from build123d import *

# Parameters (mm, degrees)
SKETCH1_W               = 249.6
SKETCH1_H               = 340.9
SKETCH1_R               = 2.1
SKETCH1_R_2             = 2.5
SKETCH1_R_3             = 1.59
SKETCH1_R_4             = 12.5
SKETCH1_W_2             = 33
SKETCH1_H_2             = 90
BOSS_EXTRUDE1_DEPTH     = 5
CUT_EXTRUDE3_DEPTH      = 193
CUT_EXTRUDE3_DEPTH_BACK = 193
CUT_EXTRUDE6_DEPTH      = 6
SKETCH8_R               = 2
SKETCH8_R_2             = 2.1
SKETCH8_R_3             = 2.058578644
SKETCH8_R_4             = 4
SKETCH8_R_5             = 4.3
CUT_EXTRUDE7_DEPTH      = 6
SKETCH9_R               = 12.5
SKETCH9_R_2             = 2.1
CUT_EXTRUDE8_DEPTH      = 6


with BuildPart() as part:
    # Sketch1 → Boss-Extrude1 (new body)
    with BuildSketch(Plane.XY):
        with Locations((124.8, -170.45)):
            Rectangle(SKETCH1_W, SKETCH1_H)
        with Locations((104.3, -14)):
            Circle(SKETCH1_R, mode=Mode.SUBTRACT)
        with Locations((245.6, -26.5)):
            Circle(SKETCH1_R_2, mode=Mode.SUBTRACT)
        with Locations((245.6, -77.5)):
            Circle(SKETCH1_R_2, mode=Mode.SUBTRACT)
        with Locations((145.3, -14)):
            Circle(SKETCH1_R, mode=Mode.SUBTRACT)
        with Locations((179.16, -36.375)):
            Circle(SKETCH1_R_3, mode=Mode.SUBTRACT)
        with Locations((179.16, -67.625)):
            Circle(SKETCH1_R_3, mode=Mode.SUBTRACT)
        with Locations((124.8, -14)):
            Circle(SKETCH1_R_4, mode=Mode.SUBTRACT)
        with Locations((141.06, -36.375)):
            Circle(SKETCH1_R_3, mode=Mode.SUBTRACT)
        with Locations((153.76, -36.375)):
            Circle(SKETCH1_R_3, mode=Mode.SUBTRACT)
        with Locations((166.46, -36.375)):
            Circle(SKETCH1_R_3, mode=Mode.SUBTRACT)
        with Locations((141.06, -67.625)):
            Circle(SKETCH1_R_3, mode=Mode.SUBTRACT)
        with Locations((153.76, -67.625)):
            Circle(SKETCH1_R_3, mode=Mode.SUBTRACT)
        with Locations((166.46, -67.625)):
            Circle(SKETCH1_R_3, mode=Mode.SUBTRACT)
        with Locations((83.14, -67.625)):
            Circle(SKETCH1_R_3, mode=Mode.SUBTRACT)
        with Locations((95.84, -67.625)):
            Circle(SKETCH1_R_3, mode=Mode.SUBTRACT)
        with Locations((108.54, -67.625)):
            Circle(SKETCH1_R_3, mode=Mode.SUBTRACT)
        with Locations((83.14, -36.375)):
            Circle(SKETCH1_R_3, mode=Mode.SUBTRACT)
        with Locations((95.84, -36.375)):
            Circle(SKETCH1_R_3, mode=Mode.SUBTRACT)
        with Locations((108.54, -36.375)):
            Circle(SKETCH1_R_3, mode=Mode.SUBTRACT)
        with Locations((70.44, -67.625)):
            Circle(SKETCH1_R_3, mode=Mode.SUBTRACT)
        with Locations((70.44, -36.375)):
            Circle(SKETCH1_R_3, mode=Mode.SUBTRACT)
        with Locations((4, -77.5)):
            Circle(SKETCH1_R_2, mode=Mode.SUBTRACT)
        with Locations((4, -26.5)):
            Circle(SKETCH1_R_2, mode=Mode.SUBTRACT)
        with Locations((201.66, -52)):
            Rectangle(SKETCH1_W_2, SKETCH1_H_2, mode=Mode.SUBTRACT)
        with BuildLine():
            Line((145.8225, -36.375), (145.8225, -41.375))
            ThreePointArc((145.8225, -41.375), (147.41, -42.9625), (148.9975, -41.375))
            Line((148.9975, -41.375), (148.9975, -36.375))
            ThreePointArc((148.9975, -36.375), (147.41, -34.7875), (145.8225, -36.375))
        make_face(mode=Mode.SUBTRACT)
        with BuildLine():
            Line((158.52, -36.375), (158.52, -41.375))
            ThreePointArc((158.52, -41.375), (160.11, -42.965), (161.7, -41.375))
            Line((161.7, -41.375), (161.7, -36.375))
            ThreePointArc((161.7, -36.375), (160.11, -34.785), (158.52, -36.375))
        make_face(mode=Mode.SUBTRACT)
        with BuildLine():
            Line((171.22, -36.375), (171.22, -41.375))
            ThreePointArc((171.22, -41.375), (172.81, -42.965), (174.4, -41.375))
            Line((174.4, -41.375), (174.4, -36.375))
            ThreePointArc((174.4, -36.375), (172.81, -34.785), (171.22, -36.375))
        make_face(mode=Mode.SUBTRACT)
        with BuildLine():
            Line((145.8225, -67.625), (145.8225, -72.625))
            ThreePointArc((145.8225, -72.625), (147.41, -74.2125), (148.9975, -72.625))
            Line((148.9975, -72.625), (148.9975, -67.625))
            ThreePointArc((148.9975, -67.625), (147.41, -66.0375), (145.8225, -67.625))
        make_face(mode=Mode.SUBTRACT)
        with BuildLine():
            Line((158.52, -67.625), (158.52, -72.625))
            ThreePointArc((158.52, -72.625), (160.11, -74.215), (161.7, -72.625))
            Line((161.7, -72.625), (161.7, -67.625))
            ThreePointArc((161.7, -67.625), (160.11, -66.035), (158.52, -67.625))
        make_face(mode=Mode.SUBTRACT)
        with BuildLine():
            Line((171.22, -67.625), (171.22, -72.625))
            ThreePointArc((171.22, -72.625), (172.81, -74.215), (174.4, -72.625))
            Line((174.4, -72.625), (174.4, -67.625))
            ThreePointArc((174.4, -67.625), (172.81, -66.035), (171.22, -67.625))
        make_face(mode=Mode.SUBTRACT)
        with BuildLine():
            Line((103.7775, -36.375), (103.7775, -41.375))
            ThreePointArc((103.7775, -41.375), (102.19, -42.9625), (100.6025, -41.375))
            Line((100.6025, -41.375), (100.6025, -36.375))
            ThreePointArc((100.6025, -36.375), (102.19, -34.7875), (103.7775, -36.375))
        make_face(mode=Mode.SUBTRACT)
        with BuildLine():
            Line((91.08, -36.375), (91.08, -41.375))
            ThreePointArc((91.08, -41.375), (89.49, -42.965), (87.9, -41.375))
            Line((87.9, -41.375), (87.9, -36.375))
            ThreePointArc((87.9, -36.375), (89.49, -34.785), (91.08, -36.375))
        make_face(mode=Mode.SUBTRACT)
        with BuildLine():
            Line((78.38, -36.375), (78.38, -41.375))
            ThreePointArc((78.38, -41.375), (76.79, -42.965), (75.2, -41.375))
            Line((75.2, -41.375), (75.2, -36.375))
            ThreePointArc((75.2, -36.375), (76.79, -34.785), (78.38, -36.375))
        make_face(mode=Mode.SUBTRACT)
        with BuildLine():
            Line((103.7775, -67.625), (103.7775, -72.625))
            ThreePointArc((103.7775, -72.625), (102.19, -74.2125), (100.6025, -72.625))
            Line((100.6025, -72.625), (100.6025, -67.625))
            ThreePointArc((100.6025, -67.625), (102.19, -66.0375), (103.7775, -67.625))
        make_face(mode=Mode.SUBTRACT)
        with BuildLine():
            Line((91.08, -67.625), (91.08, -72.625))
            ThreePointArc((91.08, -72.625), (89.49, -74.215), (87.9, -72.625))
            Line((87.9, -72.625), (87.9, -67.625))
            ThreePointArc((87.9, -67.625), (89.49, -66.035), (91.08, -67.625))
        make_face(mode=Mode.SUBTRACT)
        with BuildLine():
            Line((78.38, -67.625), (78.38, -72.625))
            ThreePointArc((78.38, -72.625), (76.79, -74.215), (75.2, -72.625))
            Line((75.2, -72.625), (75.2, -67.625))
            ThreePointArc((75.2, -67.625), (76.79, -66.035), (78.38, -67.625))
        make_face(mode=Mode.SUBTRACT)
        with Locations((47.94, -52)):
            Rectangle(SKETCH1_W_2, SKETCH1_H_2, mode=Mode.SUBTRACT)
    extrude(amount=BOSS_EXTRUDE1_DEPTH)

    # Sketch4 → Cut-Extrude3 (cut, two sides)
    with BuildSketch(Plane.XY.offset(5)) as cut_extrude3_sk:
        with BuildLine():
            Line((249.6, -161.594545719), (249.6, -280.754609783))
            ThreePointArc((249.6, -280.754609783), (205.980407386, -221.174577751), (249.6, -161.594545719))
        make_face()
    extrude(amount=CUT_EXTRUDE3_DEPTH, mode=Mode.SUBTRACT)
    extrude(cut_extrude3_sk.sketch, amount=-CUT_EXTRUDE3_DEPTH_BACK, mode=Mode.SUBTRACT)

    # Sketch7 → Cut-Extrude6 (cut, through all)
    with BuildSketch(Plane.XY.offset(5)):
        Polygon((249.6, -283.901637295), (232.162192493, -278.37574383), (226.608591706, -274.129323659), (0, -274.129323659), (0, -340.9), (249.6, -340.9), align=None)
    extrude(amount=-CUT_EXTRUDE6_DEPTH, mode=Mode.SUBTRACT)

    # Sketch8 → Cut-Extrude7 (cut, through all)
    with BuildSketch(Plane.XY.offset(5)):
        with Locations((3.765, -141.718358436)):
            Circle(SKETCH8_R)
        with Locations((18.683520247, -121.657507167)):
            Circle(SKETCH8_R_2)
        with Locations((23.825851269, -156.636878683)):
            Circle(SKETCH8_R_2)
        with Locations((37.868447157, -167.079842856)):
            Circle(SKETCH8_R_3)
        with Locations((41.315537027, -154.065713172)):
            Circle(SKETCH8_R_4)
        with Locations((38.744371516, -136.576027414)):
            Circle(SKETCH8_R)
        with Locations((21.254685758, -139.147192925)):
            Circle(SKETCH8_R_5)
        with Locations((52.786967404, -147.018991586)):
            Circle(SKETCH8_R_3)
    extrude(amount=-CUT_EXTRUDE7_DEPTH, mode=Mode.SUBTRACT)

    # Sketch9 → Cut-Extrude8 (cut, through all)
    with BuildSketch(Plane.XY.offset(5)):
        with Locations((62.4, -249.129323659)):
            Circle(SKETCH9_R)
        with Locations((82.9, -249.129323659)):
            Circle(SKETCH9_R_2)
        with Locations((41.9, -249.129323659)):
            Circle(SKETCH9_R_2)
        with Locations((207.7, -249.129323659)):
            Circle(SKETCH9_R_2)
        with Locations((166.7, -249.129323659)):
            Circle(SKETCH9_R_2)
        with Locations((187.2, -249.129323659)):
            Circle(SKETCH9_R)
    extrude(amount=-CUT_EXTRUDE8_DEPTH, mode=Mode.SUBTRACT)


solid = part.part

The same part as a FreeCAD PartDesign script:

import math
import FreeCAD as App
import Part
import Sketcher

V = App.Vector


def add_polygon(sketch, points):
    """Adds a closed chain of lines whose ends are joined by coincident constraints."""
    first, n = sketch.GeometryCount, len(points)
    for a, b in zip(points, points[1:] + points[:1]):
        sketch.addGeometry(Part.LineSegment(App.Vector(*a, 0), App.Vector(*b, 0)), False)
    for i in range(n):
        sketch.addConstraint(Sketcher.Constraint("Coincident", first + i, 2, first + (i + 1) % n, 1))

doc = App.newDocument("Part")
body = doc.addObject("PartDesign::Body", "Body")

# Sketch on XY plane
sketch1 = doc.addObject("Sketcher::SketchObject", "Sketch")
body.addObject(sketch1)
sketch1.AttachmentSupport = (doc.XY_Plane, [""])
sketch1.MapMode = "FlatFace"
add_polygon(sketch1, [(0, 0), (0, -340.9), (249.6, -340.9), (249.6, 0)])  # lines 0-3
sketch1.addGeometry(Part.Circle(V(4, -77.5, 0), V(0, 0, 1), 2.5), False)  # 4
add_polygon(sketch1, [(64.4, -97), (31.4, -97), (31.4, -7), (64.4, -7)])  # lines 5-8
sketch1.addGeometry(Part.Circle(V(70.4, -67.6, 0), V(0, 0, 1), 1.6), False)  # 9
sketch1.addGeometry(Part.ArcOfCircle(Part.Circle(V(76.8, -67.6, 0), V(0, 0, 1), 1.6), math.radians(0), math.radians(180)), False)  # 10
sketch1.addGeometry(Part.LineSegment(V(78.4, -67.6, 0), V(78.4, -72.6, 0)), False)  # 11
sketch1.addGeometry(Part.ArcOfCircle(Part.Circle(V(76.8, -72.6, 0), V(0, 0, 1), 1.6), math.radians(180), math.radians(360)), False)  # 12
sketch1.addGeometry(Part.LineSegment(V(75.2, -72.6, 0), V(75.2, -67.6, 0)), False)  # 13
sketch1.addGeometry(Part.Circle(V(83.1, -67.6, 0), V(0, 0, 1), 1.6), False)  # 14
sketch1.addGeometry(Part.ArcOfCircle(Part.Circle(V(89.5, -67.6, 0), V(0, 0, 1), 1.6), math.radians(0), math.radians(180)), False)  # 15
sketch1.addGeometry(Part.LineSegment(V(91.1, -67.6, 0), V(91.1, -72.6, 0)), False)  # 16
sketch1.addGeometry(Part.ArcOfCircle(Part.Circle(V(89.5, -72.6, 0), V(0, 0, 1), 1.6), math.radians(180), math.radians(360)), False)  # 17
sketch1.addGeometry(Part.LineSegment(V(87.9, -72.6, 0), V(87.9, -67.6, 0)), False)  # 18
sketch1.addGeometry(Part.Circle(V(95.8, -67.6, 0), V(0, 0, 1), 1.6), False)  # 19
sketch1.addGeometry(Part.ArcOfCircle(Part.Circle(V(102.2, -67.6, 0), V(0, 0, 1), 1.6), math.radians(0), math.radians(180)), False)  # 20
sketch1.addGeometry(Part.LineSegment(V(103.8, -67.6, 0), V(103.8, -72.6, 0)), False)  # 21
sketch1.addGeometry(Part.ArcOfCircle(Part.Circle(V(102.2, -72.6, 0), V(0, 0, 1), 1.6), math.radians(180), math.radians(360)), False)  # 22
sketch1.addGeometry(Part.LineSegment(V(100.6, -72.6, 0), V(100.6, -67.6, 0)), False)  # 23
sketch1.addGeometry(Part.Circle(V(108.5, -67.6, 0), V(0, 0, 1), 1.6), False)  # 24
sketch1.addGeometry(Part.Circle(V(245.6, -77.5, 0), V(0, 0, 1), 2.5), False)  # 25
sketch1.addGeometry(Part.LineSegment(V(145.8, -72.6, 0), V(145.8, -67.6, 0)), False)  # 26
sketch1.addGeometry(Part.ArcOfCircle(Part.Circle(V(147.4, -67.6, 0), V(0, 0, 1), 1.6), math.radians(0), math.radians(180)), False)  # 27
sketch1.addGeometry(Part.LineSegment(V(149, -67.6, 0), V(149, -72.6, 0)), False)  # 28
sketch1.addGeometry(Part.ArcOfCircle(Part.Circle(V(147.4, -72.6, 0), V(0, 0, 1), 1.6), math.radians(180), math.radians(360)), False)  # 29
sketch1.addGeometry(Part.Circle(V(141.1, -67.6, 0), V(0, 0, 1), 1.6), False)  # 30
sketch1.addGeometry(Part.Circle(V(153.8, -67.6, 0), V(0, 0, 1), 1.6), False)  # 31
sketch1.addGeometry(Part.LineSegment(V(158.5, -72.6, 0), V(158.5, -67.6, 0)), False)  # 32
sketch1.addGeometry(Part.ArcOfCircle(Part.Circle(V(160.1, -67.6, 0), V(0, 0, 1), 1.6), math.radians(0), math.radians(180)), False)  # 33
sketch1.addGeometry(Part.LineSegment(V(161.7, -67.6, 0), V(161.7, -72.6, 0)), False)  # 34
sketch1.addGeometry(Part.ArcOfCircle(Part.Circle(V(160.1, -72.6, 0), V(0, 0, 1), 1.6), math.radians(180), math.radians(360)), False)  # 35
sketch1.addGeometry(Part.Circle(V(166.5, -67.6, 0), V(0, 0, 1), 1.6), False)  # 36
sketch1.addGeometry(Part.LineSegment(V(171.2, -72.6, 0), V(171.2, -67.6, 0)), False)  # 37
sketch1.addGeometry(Part.ArcOfCircle(Part.Circle(V(172.8, -67.6, 0), V(0, 0, 1), 1.6), math.radians(0), math.radians(180)), False)  # 38
sketch1.addGeometry(Part.LineSegment(V(174.4, -67.6, 0), V(174.4, -72.6, 0)), False)  # 39
sketch1.addGeometry(Part.ArcOfCircle(Part.Circle(V(172.8, -72.6, 0), V(0, 0, 1), 1.6), math.radians(180), math.radians(360)), False)  # 40
sketch1.addGeometry(Part.Circle(V(179.2, -67.6, 0), V(0, 0, 1), 1.6), False)  # 41
add_polygon(sketch1, [(218.2, -97), (185.2, -97), (185.2, -7), (218.2, -7)])  # lines 42-45
sketch1.addGeometry(Part.Circle(V(4, -26.5, 0), V(0, 0, 1), 2.5), False)  # 46
sketch1.addGeometry(Part.ArcOfCircle(Part.Circle(V(76.8, -36.4, 0), V(0, 0, 1), 1.6), math.radians(0), math.radians(180)), False)  # 47
sketch1.addGeometry(Part.LineSegment(V(78.4, -36.4, 0), V(78.4, -41.4, 0)), False)  # 48
sketch1.addGeometry(Part.ArcOfCircle(Part.Circle(V(76.8, -41.4, 0), V(0, 0, 1), 1.6), math.radians(180), math.radians(360)), False)  # 49
sketch1.addGeometry(Part.LineSegment(V(75.2, -41.4, 0), V(75.2, -36.4, 0)), False)  # 50
sketch1.addGeometry(Part.ArcOfCircle(Part.Circle(V(89.5, -36.4, 0), V(0, 0, 1), 1.6), math.radians(0), math.radians(180)), False)  # 51
sketch1.addGeometry(Part.LineSegment(V(91.1, -36.4, 0), V(91.1, -41.4, 0)), False)  # 52
sketch1.addGeometry(Part.ArcOfCircle(Part.Circle(V(89.5, -41.4, 0), V(0, 0, 1), 1.6), math.radians(180), math.radians(360)), False)  # 53
sketch1.addGeometry(Part.LineSegment(V(87.9, -41.4, 0), V(87.9, -36.4, 0)), False)  # 54
sketch1.addGeometry(Part.ArcOfCircle(Part.Circle(V(102.2, -36.4, 0), V(0, 0, 1), 1.6), math.radians(0), math.radians(180)), False)  # 55
sketch1.addGeometry(Part.LineSegment(V(103.8, -36.4, 0), V(103.8, -41.4, 0)), False)  # 56
sketch1.addGeometry(Part.ArcOfCircle(Part.Circle(V(102.2, -41.4, 0), V(0, 0, 1), 1.6), math.radians(180), math.radians(360)), False)  # 57
sketch1.addGeometry(Part.LineSegment(V(100.6, -41.4, 0), V(100.6, -36.4, 0)), False)  # 58
sketch1.addGeometry(Part.Circle(V(70.4, -36.4, 0), V(0, 0, 1), 1.6), False)  # 59
sketch1.addGeometry(Part.Circle(V(83.1, -36.4, 0), V(0, 0, 1), 1.6), False)  # 60
sketch1.addGeometry(Part.Circle(V(95.8, -36.4, 0), V(0, 0, 1), 1.6), False)  # 61
sketch1.addGeometry(Part.Circle(V(108.5, -36.4, 0), V(0, 0, 1), 1.6), False)  # 62
sketch1.addGeometry(Part.Circle(V(104.3, -14, 0), V(0, 0, 1), 2.1), False)  # 63
sketch1.addGeometry(Part.Circle(V(124.8, -14, 0), V(0, 0, 1), 12.5), False)  # 64
sketch1.addGeometry(Part.LineSegment(V(145.8, -41.4, 0), V(145.8, -36.4, 0)), False)  # 65
sketch1.addGeometry(Part.ArcOfCircle(Part.Circle(V(147.4, -36.4, 0), V(0, 0, 1), 1.6), math.radians(0), math.radians(180)), False)  # 66
sketch1.addGeometry(Part.LineSegment(V(149, -36.4, 0), V(149, -41.4, 0)), False)  # 67
sketch1.addGeometry(Part.ArcOfCircle(Part.Circle(V(147.4, -41.4, 0), V(0, 0, 1), 1.6), math.radians(180), math.radians(360)), False)  # 68
sketch1.addGeometry(Part.LineSegment(V(158.5, -41.4, 0), V(158.5, -36.4, 0)), False)  # 69
sketch1.addGeometry(Part.ArcOfCircle(Part.Circle(V(160.1, -36.4, 0), V(0, 0, 1), 1.6), math.radians(0), math.radians(180)), False)  # 70
sketch1.addGeometry(Part.LineSegment(V(161.7, -36.4, 0), V(161.7, -41.4, 0)), False)  # 71
sketch1.addGeometry(Part.ArcOfCircle(Part.Circle(V(160.1, -41.4, 0), V(0, 0, 1), 1.6), math.radians(180), math.radians(360)), False)  # 72
sketch1.addGeometry(Part.LineSegment(V(171.2, -41.4, 0), V(171.2, -36.4, 0)), False)  # 73
sketch1.addGeometry(Part.ArcOfCircle(Part.Circle(V(172.8, -36.4, 0), V(0, 0, 1), 1.6), math.radians(0), math.radians(180)), False)  # 74
sketch1.addGeometry(Part.LineSegment(V(174.4, -36.4, 0), V(174.4, -41.4, 0)), False)  # 75
sketch1.addGeometry(Part.ArcOfCircle(Part.Circle(V(172.8, -41.4, 0), V(0, 0, 1), 1.6), math.radians(180), math.radians(360)), False)  # 76
sketch1.addGeometry(Part.Circle(V(141.1, -36.4, 0), V(0, 0, 1), 1.6), False)  # 77
sketch1.addGeometry(Part.Circle(V(153.8, -36.4, 0), V(0, 0, 1), 1.6), False)  # 78
sketch1.addGeometry(Part.Circle(V(166.5, -36.4, 0), V(0, 0, 1), 1.6), False)  # 79
sketch1.addGeometry(Part.Circle(V(179.2, -36.4, 0), V(0, 0, 1), 1.6), False)  # 80
sketch1.addGeometry(Part.Circle(V(245.6, -26.5, 0), V(0, 0, 1), 2.5), False)  # 81
sketch1.addGeometry(Part.Circle(V(145.3, -14, 0), V(0, 0, 1), 2.1), False)  # 82
sketch1.addConstraint([
    Sketcher.Constraint("Tangent", 10, 1, 11, 1),
    Sketcher.Constraint("Tangent", 11, 2, 12, 2),
    Sketcher.Constraint("Tangent", 12, 1, 13, 1),
    Sketcher.Constraint("Tangent", 13, 2, 10, 2),
    Sketcher.Constraint("Tangent", 15, 1, 16, 1),
    Sketcher.Constraint("Tangent", 16, 2, 17, 2),
    Sketcher.Constraint("Tangent", 17, 1, 18, 1),
    Sketcher.Constraint("Tangent", 18, 2, 15, 2),
    Sketcher.Constraint("Tangent", 20, 1, 21, 1),
    Sketcher.Constraint("Tangent", 21, 2, 22, 2),
    Sketcher.Constraint("Tangent", 22, 1, 23, 1),
    Sketcher.Constraint("Tangent", 23, 2, 20, 2),
    Sketcher.Constraint("Tangent", 26, 2, 27, 2),
    Sketcher.Constraint("Tangent", 27, 1, 28, 1),
    Sketcher.Constraint("Tangent", 28, 2, 29, 2),
    Sketcher.Constraint("Tangent", 29, 1, 26, 1),
    Sketcher.Constraint("Tangent", 32, 2, 33, 2),
    Sketcher.Constraint("Tangent", 33, 1, 34, 1),
    Sketcher.Constraint("Tangent", 34, 2, 35, 2),
    Sketcher.Constraint("Tangent", 35, 1, 32, 1),
    Sketcher.Constraint("Tangent", 37, 2, 38, 2),
    Sketcher.Constraint("Tangent", 38, 1, 39, 1),
    Sketcher.Constraint("Tangent", 39, 2, 40, 2),
    Sketcher.Constraint("Tangent", 40, 1, 37, 1),
    Sketcher.Constraint("Tangent", 47, 1, 48, 1),
    Sketcher.Constraint("Tangent", 48, 2, 49, 2),
    Sketcher.Constraint("Tangent", 49, 1, 50, 1),
    Sketcher.Constraint("Tangent", 50, 2, 47, 2),
    Sketcher.Constraint("Tangent", 51, 1, 52, 1),
    Sketcher.Constraint("Tangent", 52, 2, 53, 2),
    Sketcher.Constraint("Tangent", 53, 1, 54, 1),
    Sketcher.Constraint("Tangent", 54, 2, 51, 2),
    Sketcher.Constraint("Tangent", 55, 1, 56, 1),
    Sketcher.Constraint("Tangent", 56, 2, 57, 2),
    Sketcher.Constraint("Tangent", 57, 1, 58, 1),
    Sketcher.Constraint("Tangent", 58, 2, 55, 2),
    Sketcher.Constraint("Tangent", 65, 2, 66, 2),
    Sketcher.Constraint("Tangent", 66, 1, 67, 1),
    Sketcher.Constraint("Tangent", 67, 2, 68, 2),
    Sketcher.Constraint("Tangent", 68, 1, 65, 1),
    Sketcher.Constraint("Tangent", 69, 2, 70, 2),
    Sketcher.Constraint("Tangent", 70, 1, 71, 1),
    Sketcher.Constraint("Tangent", 71, 2, 72, 2),
    Sketcher.Constraint("Tangent", 72, 1, 69, 1),
    Sketcher.Constraint("Tangent", 73, 2, 74, 2),
    Sketcher.Constraint("Tangent", 74, 1, 75, 1),
    Sketcher.Constraint("Tangent", 75, 2, 76, 2),
    Sketcher.Constraint("Tangent", 76, 1, 73, 1),
    Sketcher.Constraint("Vertical", 0),
    Sketcher.Constraint("Horizontal", 1),
    Sketcher.Constraint("Vertical", 2),
    Sketcher.Constraint("Horizontal", 3),
    Sketcher.Constraint("Horizontal", 5),
    Sketcher.Constraint("Vertical", 6),
    Sketcher.Constraint("Horizontal", 7),
    Sketcher.Constraint("Vertical", 8),
    Sketcher.Constraint("Vertical", 11),
    Sketcher.Constraint("Vertical", 13),
    Sketcher.Constraint("Vertical", 16),
    Sketcher.Constraint("Vertical", 18),
    Sketcher.Constraint("Vertical", 21),
    Sketcher.Constraint("Vertical", 23),
    Sketcher.Constraint("Vertical", 26),
    Sketcher.Constraint("Vertical", 28),
    Sketcher.Constraint("Vertical", 32),
    Sketcher.Constraint("Vertical", 34),
    Sketcher.Constraint("Vertical", 37),
    Sketcher.Constraint("Vertical", 39),
    Sketcher.Constraint("Horizontal", 42),
    Sketcher.Constraint("Vertical", 43),
    Sketcher.Constraint("Horizontal", 44),
    Sketcher.Constraint("Vertical", 45),
    Sketcher.Constraint("Vertical", 48),
    Sketcher.Constraint("Vertical", 50),
    Sketcher.Constraint("Vertical", 52),
    Sketcher.Constraint("Vertical", 54),
    Sketcher.Constraint("Vertical", 56),
    Sketcher.Constraint("Vertical", 58),
    Sketcher.Constraint("Vertical", 65),
    Sketcher.Constraint("Vertical", 67),
    Sketcher.Constraint("Vertical", 69),
    Sketcher.Constraint("Vertical", 71),
    Sketcher.Constraint("Vertical", 73),
    Sketcher.Constraint("Vertical", 75),
    Sketcher.Constraint("Coincident", 3, 2, -1, 1),
    Sketcher.Constraint("Equal", 9, 10),
    Sketcher.Constraint("Equal", 12, 14),
    Sketcher.Constraint("Equal", 14, 15),
    Sketcher.Constraint("Equal", 17, 19),
    Sketcher.Constraint("Equal", 19, 24),
    Sketcher.Constraint("Equal", 4, 25),
    Sketcher.Constraint("Equal", 22, 27),
    Sketcher.Constraint("Equal", 24, 30),
    Sketcher.Constraint("Equal", 30, 31),
    Sketcher.Constraint("Equal", 31, 33),
    Sketcher.Constraint("Equal", 35, 36),
    Sketcher.Constraint("Equal", 36, 38),
    Sketcher.Constraint("Equal", 40, 41),
    Sketcher.Constraint("Equal", 25, 46),
    Sketcher.Constraint("Equal", 41, 47),
    Sketcher.Constraint("Equal", 49, 51),
    Sketcher.Constraint("Equal", 29, 55),
    Sketcher.Constraint("Equal", 53, 59),
    Sketcher.Constraint("Equal", 59, 60),
    Sketcher.Constraint("Equal", 60, 61),
    Sketcher.Constraint("Equal", 61, 62),
    Sketcher.Constraint("Equal", 57, 66),
    Sketcher.Constraint("Equal", 62, 70),
    Sketcher.Constraint("Equal", 72, 74),
    Sketcher.Constraint("Equal", 76, 77),
    Sketcher.Constraint("Equal", 77, 78),
    Sketcher.Constraint("Equal", 78, 79),
    Sketcher.Constraint("Equal", 79, 80),
    Sketcher.Constraint("Equal", 46, 81),
    Sketcher.Constraint("Equal", 63, 82),
    Sketcher.Constraint("Horizontal", 9, 3, 10, 3),
    Sketcher.Constraint("Horizontal", 10, 3, 14, 3),
    Sketcher.Constraint("Horizontal", 14, 3, 15, 3),
    Sketcher.Constraint("Horizontal", 12, 3, 17, 3),
    Sketcher.Constraint("Horizontal", 15, 3, 19, 3),
    Sketcher.Constraint("Horizontal", 19, 3, 20, 3),
    Sketcher.Constraint("Horizontal", 17, 3, 22, 3),
    Sketcher.Constraint("Horizontal", 20, 3, 24, 3),
    Sketcher.Constraint("Horizontal", 4, 3, 25, 3),
    Sketcher.Constraint("Horizontal", 24, 3, 27, 3),
    Sketcher.Constraint("Horizontal", 22, 3, 29, 3),
    Sketcher.Constraint("Horizontal", 27, 3, 30, 3),
    Sketcher.Constraint("Horizontal", 30, 3, 31, 3),
    Sketcher.Constraint("Horizontal", 31, 3, 33, 3),
    Sketcher.Constraint("Horizontal", 29, 3, 35, 3),
    Sketcher.Constraint("Horizontal", 33, 3, 36, 3),
    Sketcher.Constraint("Horizontal", 36, 3, 38, 3),
    Sketcher.Constraint("Horizontal", 35, 3, 40, 3),
    Sketcher.Constraint("Horizontal", 38, 3, 41, 3),
    Sketcher.Constraint("Horizontal", 47, 3, 51, 3),
    Sketcher.Constraint("Horizontal", 49, 3, 53, 3),
    Sketcher.Constraint("Horizontal", 51, 3, 55, 3),
    Sketcher.Constraint("Horizontal", 53, 3, 57, 3),
    Sketcher.Constraint("Horizontal", 55, 3, 59, 3),
    Sketcher.Constraint("Horizontal", 59, 3, 60, 3),
    Sketcher.Constraint("Horizontal", 60, 3, 61, 3),
    Sketcher.Constraint("Horizontal", 61, 3, 62, 3),
    Sketcher.Constraint("Horizontal", 63, 3, 64, 3),
    Sketcher.Constraint("Horizontal", 62, 3, 66, 3),
    Sketcher.Constraint("Horizontal", 57, 3, 68, 3),
    Sketcher.Constraint("Horizontal", 66, 3, 70, 3),
    Sketcher.Constraint("Horizontal", 68, 3, 72, 3),
    Sketcher.Constraint("Horizontal", 70, 3, 74, 3),
    Sketcher.Constraint("Horizontal", 72, 3, 76, 3),
    Sketcher.Constraint("Horizontal", 74, 3, 77, 3),
    Sketcher.Constraint("Horizontal", 77, 3, 78, 3),
    Sketcher.Constraint("Horizontal", 78, 3, 79, 3),
    Sketcher.Constraint("Horizontal", 79, 3, 80, 3),
    Sketcher.Constraint("Horizontal", 46, 3, 81, 3),
    Sketcher.Constraint("Horizontal", 64, 3, 82, 3),
    Sketcher.Constraint("Horizontal", 8, 2, 42, 2),
    Sketcher.Constraint("Horizontal", 7, 2, 43, 2),
    Sketcher.Constraint("Vertical", 4, 3, 46, 3),
    Sketcher.Constraint("Vertical", 12, 3, 47, 3),
    Sketcher.Constraint("Vertical", 17, 3, 51, 3),
    Sketcher.Constraint("Vertical", 22, 3, 55, 3),
    Sketcher.Constraint("Vertical", 9, 3, 59, 3),
    Sketcher.Constraint("Vertical", 14, 3, 60, 3),
    Sketcher.Constraint("Vertical", 19, 3, 61, 3),
    Sketcher.Constraint("Vertical", 24, 3, 62, 3),
    Sketcher.Constraint("Vertical", 29, 3, 66, 3),
    Sketcher.Constraint("Vertical", 35, 3, 70, 3),
    Sketcher.Constraint("Vertical", 40, 3, 74, 3),
    Sketcher.Constraint("Vertical", 30, 3, 77, 3),
    Sketcher.Constraint("Vertical", 31, 3, 78, 3),
    Sketcher.Constraint("Vertical", 36, 3, 79, 3),
    Sketcher.Constraint("Vertical", 41, 3, 80, 3),
    Sketcher.Constraint("Vertical", 25, 3, 81, 3),
    Sketcher.Constraint("Equal", 7, 42),
    Sketcher.Constraint("Equal", 39, 48),
    Sketcher.Constraint("Diameter", 4, 5.0),
    Sketcher.Constraint("Diameter", 64, 25.0),
    Sketcher.Constraint("Diameter", 63, 4.2),
    Sketcher.Constraint("Diameter", 9, 3.18),
    Sketcher.Constraint("DistanceX", 5, 2, 5, 1, 33.0),
    Sketcher.Constraint("DistanceY", 6, 1, 6, 2, 90.0),
    Sketcher.Constraint("DistanceY", 11, 2, 11, 1, 5.0),
    Sketcher.Constraint("DistanceX", 1, 1, 1, 2, 249.6),
    Sketcher.Constraint("DistanceY", 0, 2, 0, 1, 340.9),
    Sketcher.Constraint("DistanceX", -1, 1, 4, 3, 4.0),
    Sketcher.Constraint("DistanceY", 63, 3, -1, 1, 14.0),
    Sketcher.Constraint("DistanceY", 5, 2, -1, 1, 97.0),
    Sketcher.Constraint("DistanceY", 4, 3, -1, 1, 77.5),
    Sketcher.Constraint("DistanceX", -1, 1, 25, 3, 245.6),
    Sketcher.Constraint("DistanceY", 46, 3, -1, 1, 26.5),
    Sketcher.Constraint("DistanceX", -1, 1, 63, 3, 104.3),
    Sketcher.Constraint("DistanceX", -1, 1, 64, 3, 124.8),
    Sketcher.Constraint("DistanceX", -1, 1, 82, 3, 145.3),
    Sketcher.Constraint("DistanceX", -1, 1, 12, 1, 75.2),
    Sketcher.Constraint("DistanceX", -1, 1, 17, 1, 87.9),
    Sketcher.Constraint("DistanceX", -1, 1, 33, 1, 161.7),
    Sketcher.Constraint("DistanceX", -1, 1, 38, 1, 174.4),
    Sketcher.Constraint("Radius", 20, 1.5875),
    Sketcher.Constraint("DistanceX", -1, 1, 9, 3, 70.44),
    Sketcher.Constraint("DistanceX", -1, 1, 14, 3, 83.14),
    Sketcher.Constraint("DistanceX", -1, 1, 19, 3, 95.84),
    Sketcher.Constraint("DistanceX", -1, 1, 20, 3, 102.19),
    Sketcher.Constraint("DistanceX", -1, 1, 24, 3, 108.54),
    Sketcher.Constraint("DistanceX", -1, 1, 27, 3, 147.41),
    Sketcher.Constraint("DistanceX", -1, 1, 30, 3, 141.06),
    Sketcher.Constraint("DistanceX", -1, 1, 31, 3, 153.76),
    Sketcher.Constraint("DistanceX", -1, 1, 36, 3, 166.46),
    Sketcher.Constraint("DistanceX", -1, 1, 41, 3, 179.16),
    Sketcher.Constraint("DistanceX", -1, 1, 5, 2, 31.44),
    Sketcher.Constraint("DistanceX", -1, 1, 42, 2, 185.16),
    Sketcher.Constraint("DistanceY", 9, 3, -1, 1, 67.625),
    Sketcher.Constraint("DistanceY", 47, 3, -1, 1, 36.375),
])
pad1 = doc.addObject("PartDesign::Pad", "Pad")
body.addObject(pad1)
pad1.Profile = sketch1
pad1.Length = 5

# Sketch on XY plane
sketch2 = doc.addObject("Sketcher::SketchObject", "Sketch001")
body.addObject(sketch2)
sketch2.AttachmentSupport = (doc.XY_Plane, [""])
sketch2.MapMode = "FlatFace"
sketch2.AttachmentOffset = App.Placement(V(0, 0, 5), App.Rotation())
sketch2.addGeometry([
    Part.LineSegment(V(250, -281, 0), V(250, -162, 0)),
    Part.ArcOfCircle(Part.Circle(V(268, -221, 0), V(0, 0, 1), 62), math.radians(108), math.radians(252)),
], False)
sketch2.addConstraint([
    Sketcher.Constraint("Coincident", 0, 1, 1, 2),
    Sketcher.Constraint("Coincident", 1, 1, 0, 2),
    Sketcher.Constraint("Vertical", 0),
    Sketcher.Constraint("Radius", 1, 62.5),
    Sketcher.Constraint("DistanceX", -1, 1, 0, 1, 249.6),
    Sketcher.Constraint("DistanceY", 0, 1, 0, 2, 119.160064),
    Sketcher.Constraint("DistanceY", 0, 1, -1, 1, 280.75461),
])
pocket1 = doc.addObject("PartDesign::Pocket", "Pocket")
body.addObject(pocket1)
pocket1.Profile = sketch2
pocket1.Type = "ThroughAll"
pocket1.Midplane = True

# Sketch on XY plane
sketch3 = doc.addObject("Sketcher::SketchObject", "Sketch002")
body.addObject(sketch3)
sketch3.AttachmentSupport = (doc.XY_Plane, [""])
sketch3.MapMode = "FlatFace"
sketch3.AttachmentOffset = App.Placement(V(0, 0, 5), App.Rotation())
add_polygon(sketch3, [(250, -284), (232, -278), (227, -274), (0, -274), (0, -341), (250, -341)])  # lines 0-5
sketch3.addConstraint([
    Sketcher.Constraint("Horizontal", 2),
    Sketcher.Constraint("Vertical", 3),
    Sketcher.Constraint("Horizontal", 4),
    Sketcher.Constraint("Vertical", 5),
    Sketcher.Constraint("PointOnObject", 2, 2, -2),
    Sketcher.Constraint("DistanceX", 4, 1, 4, 2, 249.6),
    Sketcher.Constraint("DistanceY", 3, 2, -1, 1, 340.9),
    Sketcher.Constraint("DistanceX", 2, 2, 2, 1, 226.608592),
    Sketcher.Constraint("DistanceX", 1, 2, 0, 2, 5.553601),
    Sketcher.Constraint("Distance", 0, 18.29242),
    Sketcher.Constraint("DistanceY", 3, 2, 3, 1, 66.770676),
    Sketcher.Constraint("DistanceY", 5, 1, 5, 2, 56.998363),
])
pocket2 = doc.addObject("PartDesign::Pocket", "Pocket001")
body.addObject(pocket2)
pocket2.Profile = sketch3
pocket2.Type = "ThroughAll"

# Sketch on XY plane
sketch4 = doc.addObject("Sketcher::SketchObject", "Sketch003")
body.addObject(sketch4)
sketch4.AttachmentSupport = (doc.XY_Plane, [""])
sketch4.MapMode = "FlatFace"
sketch4.AttachmentOffset = App.Placement(V(0, 0, 5), App.Rotation())
sketch4.addGeometry([
    Part.Circle(V(3.8, -141.7, 0), V(0, 0, 1), 2),  # 0
    Part.Circle(V(18.7, -121.7, 0), V(0, 0, 1), 2.1),  # 1
    Part.Circle(V(23.8, -156.6, 0), V(0, 0, 1), 2.1),  # 2
    Part.Circle(V(37.9, -167.1, 0), V(0, 0, 1), 2.1),  # 3
    Part.Circle(V(41.3, -154.1, 0), V(0, 0, 1), 4),  # 4
    Part.Circle(V(38.7, -136.6, 0), V(0, 0, 1), 2),  # 5
    Part.Circle(V(21.3, -139.1, 0), V(0, 0, 1), 4.3),  # 6
    Part.Circle(V(52.8, -147, 0), V(0, 0, 1), 2.1),  # 7
], False)
sketch4.addConstraint([
    Sketcher.Constraint("Equal", 1, 2),
    Sketcher.Constraint("Equal", 0, 5),
    Sketcher.Constraint("Equal", 3, 7),
    Sketcher.Constraint("Diameter", 0, 4.0),
    Sketcher.Constraint("Diameter", 4, 8.0),
    Sketcher.Constraint("Diameter", 1, 4.2),
    Sketcher.Constraint("Diameter", 6, 8.6),
    Sketcher.Constraint("Diameter", 3, 4.117157),
    Sketcher.Constraint("DistanceX", -1, 1, 0, 3, 3.765),
    Sketcher.Constraint("DistanceY", 7, 3, 6, 3, 7.871799),
    Sketcher.Constraint("DistanceY", 0, 3, -1, 1, 141.718358),
    Sketcher.Constraint("DistanceX", -1, 1, 1, 3, 18.68352),
    Sketcher.Constraint("DistanceX", -1, 1, 2, 3, 23.825851),
    Sketcher.Constraint("DistanceY", 2, 3, -1, 1, 156.636879),
    Sketcher.Constraint("DistanceX", -1, 1, 5, 3, 38.744372),
    Sketcher.Constraint("DistanceY", 7, 3, -1, 1, 147.018992),
    Sketcher.Constraint("DistanceY", 0, 3, 1, 3, 20.060851),
    Sketcher.Constraint("DistanceX", 3, 3, 4, 3, 3.44709),
    Sketcher.Constraint("DistanceY", 3, 3, 4, 3, 13.01413),
    Sketcher.Constraint("DistanceY", 2, 3, 5, 3, 20.060851),
    Sketcher.Constraint("DistanceX", 6, 3, 4, 3, 20.060851),
    Sketcher.Constraint("DistanceY", 4, 3, 6, 3, 14.91852),
    Sketcher.Constraint("DistanceX", 4, 3, 7, 3, 11.47143),
    Sketcher.Constraint("DistanceX", -1, 1, 3, 3, 37.868447),
])
pocket3 = doc.addObject("PartDesign::Pocket", "Pocket002")
body.addObject(pocket3)
pocket3.Profile = sketch4
pocket3.Type = "ThroughAll"

# Sketch on XY plane
sketch5 = doc.addObject("Sketcher::SketchObject", "Sketch004")
body.addObject(sketch5)
sketch5.AttachmentSupport = (doc.XY_Plane, [""])
sketch5.MapMode = "FlatFace"
sketch5.AttachmentOffset = App.Placement(V(0, 0, 5), App.Rotation())
sketch5.addGeometry([
    Part.Circle(V(62.4, -249.1, 0), V(0, 0, 1), 12.5),  # 0
    Part.Circle(V(82.9, -249.1, 0), V(0, 0, 1), 2.1),  # 1
    Part.Circle(V(41.9, -249.1, 0), V(0, 0, 1), 2.1),  # 2
    Part.Circle(V(207.7, -249.1, 0), V(0, 0, 1), 2.1),  # 3
    Part.Circle(V(166.7, -249.1, 0), V(0, 0, 1), 2.1),  # 4
    Part.Circle(V(187.2, -249.1, 0), V(0, 0, 1), 12.5),  # 5
], False)
sketch5.addConstraint([
    Sketcher.Constraint("Equal", 1, 2),
    Sketcher.Constraint("Equal", 2, 3),
    Sketcher.Constraint("Equal", 3, 4),
    Sketcher.Constraint("Equal", 0, 5),
    Sketcher.Constraint("Horizontal", 0, 3, 1, 3),
    Sketcher.Constraint("Horizontal", 1, 3, 2, 3),
    Sketcher.Constraint("Horizontal", 2, 3, 3, 3),
    Sketcher.Constraint("Horizontal", 3, 3, 4, 3),
    Sketcher.Constraint("Horizontal", 4, 3, 5, 3),
    Sketcher.Constraint("Diameter", 0, 25.0),
    Sketcher.Constraint("Diameter", 1, 4.2),
    Sketcher.Constraint("DistanceX", 2, 3, 1, 3, 41.0),
    Sketcher.Constraint("DistanceX", 4, 3, 3, 3, 41.0),
    Sketcher.Constraint("DistanceX", -1, 1, 0, 3, 62.4),
    Sketcher.Constraint("DistanceX", -1, 1, 1, 3, 82.9),
    Sketcher.Constraint("DistanceX", -1, 1, 3, 3, 207.7),
    Sketcher.Constraint("DistanceX", -1, 1, 5, 3, 187.2),
    Sketcher.Constraint("DistanceY", 0, 3, -1, 1, 249.129324),
])
pocket4 = doc.addObject("PartDesign::Pocket", "Pocket003")
body.addObject(pocket4)
pocket4.Profile = sketch5
pocket4.Type = "ThroughAll"

doc.recompute()
